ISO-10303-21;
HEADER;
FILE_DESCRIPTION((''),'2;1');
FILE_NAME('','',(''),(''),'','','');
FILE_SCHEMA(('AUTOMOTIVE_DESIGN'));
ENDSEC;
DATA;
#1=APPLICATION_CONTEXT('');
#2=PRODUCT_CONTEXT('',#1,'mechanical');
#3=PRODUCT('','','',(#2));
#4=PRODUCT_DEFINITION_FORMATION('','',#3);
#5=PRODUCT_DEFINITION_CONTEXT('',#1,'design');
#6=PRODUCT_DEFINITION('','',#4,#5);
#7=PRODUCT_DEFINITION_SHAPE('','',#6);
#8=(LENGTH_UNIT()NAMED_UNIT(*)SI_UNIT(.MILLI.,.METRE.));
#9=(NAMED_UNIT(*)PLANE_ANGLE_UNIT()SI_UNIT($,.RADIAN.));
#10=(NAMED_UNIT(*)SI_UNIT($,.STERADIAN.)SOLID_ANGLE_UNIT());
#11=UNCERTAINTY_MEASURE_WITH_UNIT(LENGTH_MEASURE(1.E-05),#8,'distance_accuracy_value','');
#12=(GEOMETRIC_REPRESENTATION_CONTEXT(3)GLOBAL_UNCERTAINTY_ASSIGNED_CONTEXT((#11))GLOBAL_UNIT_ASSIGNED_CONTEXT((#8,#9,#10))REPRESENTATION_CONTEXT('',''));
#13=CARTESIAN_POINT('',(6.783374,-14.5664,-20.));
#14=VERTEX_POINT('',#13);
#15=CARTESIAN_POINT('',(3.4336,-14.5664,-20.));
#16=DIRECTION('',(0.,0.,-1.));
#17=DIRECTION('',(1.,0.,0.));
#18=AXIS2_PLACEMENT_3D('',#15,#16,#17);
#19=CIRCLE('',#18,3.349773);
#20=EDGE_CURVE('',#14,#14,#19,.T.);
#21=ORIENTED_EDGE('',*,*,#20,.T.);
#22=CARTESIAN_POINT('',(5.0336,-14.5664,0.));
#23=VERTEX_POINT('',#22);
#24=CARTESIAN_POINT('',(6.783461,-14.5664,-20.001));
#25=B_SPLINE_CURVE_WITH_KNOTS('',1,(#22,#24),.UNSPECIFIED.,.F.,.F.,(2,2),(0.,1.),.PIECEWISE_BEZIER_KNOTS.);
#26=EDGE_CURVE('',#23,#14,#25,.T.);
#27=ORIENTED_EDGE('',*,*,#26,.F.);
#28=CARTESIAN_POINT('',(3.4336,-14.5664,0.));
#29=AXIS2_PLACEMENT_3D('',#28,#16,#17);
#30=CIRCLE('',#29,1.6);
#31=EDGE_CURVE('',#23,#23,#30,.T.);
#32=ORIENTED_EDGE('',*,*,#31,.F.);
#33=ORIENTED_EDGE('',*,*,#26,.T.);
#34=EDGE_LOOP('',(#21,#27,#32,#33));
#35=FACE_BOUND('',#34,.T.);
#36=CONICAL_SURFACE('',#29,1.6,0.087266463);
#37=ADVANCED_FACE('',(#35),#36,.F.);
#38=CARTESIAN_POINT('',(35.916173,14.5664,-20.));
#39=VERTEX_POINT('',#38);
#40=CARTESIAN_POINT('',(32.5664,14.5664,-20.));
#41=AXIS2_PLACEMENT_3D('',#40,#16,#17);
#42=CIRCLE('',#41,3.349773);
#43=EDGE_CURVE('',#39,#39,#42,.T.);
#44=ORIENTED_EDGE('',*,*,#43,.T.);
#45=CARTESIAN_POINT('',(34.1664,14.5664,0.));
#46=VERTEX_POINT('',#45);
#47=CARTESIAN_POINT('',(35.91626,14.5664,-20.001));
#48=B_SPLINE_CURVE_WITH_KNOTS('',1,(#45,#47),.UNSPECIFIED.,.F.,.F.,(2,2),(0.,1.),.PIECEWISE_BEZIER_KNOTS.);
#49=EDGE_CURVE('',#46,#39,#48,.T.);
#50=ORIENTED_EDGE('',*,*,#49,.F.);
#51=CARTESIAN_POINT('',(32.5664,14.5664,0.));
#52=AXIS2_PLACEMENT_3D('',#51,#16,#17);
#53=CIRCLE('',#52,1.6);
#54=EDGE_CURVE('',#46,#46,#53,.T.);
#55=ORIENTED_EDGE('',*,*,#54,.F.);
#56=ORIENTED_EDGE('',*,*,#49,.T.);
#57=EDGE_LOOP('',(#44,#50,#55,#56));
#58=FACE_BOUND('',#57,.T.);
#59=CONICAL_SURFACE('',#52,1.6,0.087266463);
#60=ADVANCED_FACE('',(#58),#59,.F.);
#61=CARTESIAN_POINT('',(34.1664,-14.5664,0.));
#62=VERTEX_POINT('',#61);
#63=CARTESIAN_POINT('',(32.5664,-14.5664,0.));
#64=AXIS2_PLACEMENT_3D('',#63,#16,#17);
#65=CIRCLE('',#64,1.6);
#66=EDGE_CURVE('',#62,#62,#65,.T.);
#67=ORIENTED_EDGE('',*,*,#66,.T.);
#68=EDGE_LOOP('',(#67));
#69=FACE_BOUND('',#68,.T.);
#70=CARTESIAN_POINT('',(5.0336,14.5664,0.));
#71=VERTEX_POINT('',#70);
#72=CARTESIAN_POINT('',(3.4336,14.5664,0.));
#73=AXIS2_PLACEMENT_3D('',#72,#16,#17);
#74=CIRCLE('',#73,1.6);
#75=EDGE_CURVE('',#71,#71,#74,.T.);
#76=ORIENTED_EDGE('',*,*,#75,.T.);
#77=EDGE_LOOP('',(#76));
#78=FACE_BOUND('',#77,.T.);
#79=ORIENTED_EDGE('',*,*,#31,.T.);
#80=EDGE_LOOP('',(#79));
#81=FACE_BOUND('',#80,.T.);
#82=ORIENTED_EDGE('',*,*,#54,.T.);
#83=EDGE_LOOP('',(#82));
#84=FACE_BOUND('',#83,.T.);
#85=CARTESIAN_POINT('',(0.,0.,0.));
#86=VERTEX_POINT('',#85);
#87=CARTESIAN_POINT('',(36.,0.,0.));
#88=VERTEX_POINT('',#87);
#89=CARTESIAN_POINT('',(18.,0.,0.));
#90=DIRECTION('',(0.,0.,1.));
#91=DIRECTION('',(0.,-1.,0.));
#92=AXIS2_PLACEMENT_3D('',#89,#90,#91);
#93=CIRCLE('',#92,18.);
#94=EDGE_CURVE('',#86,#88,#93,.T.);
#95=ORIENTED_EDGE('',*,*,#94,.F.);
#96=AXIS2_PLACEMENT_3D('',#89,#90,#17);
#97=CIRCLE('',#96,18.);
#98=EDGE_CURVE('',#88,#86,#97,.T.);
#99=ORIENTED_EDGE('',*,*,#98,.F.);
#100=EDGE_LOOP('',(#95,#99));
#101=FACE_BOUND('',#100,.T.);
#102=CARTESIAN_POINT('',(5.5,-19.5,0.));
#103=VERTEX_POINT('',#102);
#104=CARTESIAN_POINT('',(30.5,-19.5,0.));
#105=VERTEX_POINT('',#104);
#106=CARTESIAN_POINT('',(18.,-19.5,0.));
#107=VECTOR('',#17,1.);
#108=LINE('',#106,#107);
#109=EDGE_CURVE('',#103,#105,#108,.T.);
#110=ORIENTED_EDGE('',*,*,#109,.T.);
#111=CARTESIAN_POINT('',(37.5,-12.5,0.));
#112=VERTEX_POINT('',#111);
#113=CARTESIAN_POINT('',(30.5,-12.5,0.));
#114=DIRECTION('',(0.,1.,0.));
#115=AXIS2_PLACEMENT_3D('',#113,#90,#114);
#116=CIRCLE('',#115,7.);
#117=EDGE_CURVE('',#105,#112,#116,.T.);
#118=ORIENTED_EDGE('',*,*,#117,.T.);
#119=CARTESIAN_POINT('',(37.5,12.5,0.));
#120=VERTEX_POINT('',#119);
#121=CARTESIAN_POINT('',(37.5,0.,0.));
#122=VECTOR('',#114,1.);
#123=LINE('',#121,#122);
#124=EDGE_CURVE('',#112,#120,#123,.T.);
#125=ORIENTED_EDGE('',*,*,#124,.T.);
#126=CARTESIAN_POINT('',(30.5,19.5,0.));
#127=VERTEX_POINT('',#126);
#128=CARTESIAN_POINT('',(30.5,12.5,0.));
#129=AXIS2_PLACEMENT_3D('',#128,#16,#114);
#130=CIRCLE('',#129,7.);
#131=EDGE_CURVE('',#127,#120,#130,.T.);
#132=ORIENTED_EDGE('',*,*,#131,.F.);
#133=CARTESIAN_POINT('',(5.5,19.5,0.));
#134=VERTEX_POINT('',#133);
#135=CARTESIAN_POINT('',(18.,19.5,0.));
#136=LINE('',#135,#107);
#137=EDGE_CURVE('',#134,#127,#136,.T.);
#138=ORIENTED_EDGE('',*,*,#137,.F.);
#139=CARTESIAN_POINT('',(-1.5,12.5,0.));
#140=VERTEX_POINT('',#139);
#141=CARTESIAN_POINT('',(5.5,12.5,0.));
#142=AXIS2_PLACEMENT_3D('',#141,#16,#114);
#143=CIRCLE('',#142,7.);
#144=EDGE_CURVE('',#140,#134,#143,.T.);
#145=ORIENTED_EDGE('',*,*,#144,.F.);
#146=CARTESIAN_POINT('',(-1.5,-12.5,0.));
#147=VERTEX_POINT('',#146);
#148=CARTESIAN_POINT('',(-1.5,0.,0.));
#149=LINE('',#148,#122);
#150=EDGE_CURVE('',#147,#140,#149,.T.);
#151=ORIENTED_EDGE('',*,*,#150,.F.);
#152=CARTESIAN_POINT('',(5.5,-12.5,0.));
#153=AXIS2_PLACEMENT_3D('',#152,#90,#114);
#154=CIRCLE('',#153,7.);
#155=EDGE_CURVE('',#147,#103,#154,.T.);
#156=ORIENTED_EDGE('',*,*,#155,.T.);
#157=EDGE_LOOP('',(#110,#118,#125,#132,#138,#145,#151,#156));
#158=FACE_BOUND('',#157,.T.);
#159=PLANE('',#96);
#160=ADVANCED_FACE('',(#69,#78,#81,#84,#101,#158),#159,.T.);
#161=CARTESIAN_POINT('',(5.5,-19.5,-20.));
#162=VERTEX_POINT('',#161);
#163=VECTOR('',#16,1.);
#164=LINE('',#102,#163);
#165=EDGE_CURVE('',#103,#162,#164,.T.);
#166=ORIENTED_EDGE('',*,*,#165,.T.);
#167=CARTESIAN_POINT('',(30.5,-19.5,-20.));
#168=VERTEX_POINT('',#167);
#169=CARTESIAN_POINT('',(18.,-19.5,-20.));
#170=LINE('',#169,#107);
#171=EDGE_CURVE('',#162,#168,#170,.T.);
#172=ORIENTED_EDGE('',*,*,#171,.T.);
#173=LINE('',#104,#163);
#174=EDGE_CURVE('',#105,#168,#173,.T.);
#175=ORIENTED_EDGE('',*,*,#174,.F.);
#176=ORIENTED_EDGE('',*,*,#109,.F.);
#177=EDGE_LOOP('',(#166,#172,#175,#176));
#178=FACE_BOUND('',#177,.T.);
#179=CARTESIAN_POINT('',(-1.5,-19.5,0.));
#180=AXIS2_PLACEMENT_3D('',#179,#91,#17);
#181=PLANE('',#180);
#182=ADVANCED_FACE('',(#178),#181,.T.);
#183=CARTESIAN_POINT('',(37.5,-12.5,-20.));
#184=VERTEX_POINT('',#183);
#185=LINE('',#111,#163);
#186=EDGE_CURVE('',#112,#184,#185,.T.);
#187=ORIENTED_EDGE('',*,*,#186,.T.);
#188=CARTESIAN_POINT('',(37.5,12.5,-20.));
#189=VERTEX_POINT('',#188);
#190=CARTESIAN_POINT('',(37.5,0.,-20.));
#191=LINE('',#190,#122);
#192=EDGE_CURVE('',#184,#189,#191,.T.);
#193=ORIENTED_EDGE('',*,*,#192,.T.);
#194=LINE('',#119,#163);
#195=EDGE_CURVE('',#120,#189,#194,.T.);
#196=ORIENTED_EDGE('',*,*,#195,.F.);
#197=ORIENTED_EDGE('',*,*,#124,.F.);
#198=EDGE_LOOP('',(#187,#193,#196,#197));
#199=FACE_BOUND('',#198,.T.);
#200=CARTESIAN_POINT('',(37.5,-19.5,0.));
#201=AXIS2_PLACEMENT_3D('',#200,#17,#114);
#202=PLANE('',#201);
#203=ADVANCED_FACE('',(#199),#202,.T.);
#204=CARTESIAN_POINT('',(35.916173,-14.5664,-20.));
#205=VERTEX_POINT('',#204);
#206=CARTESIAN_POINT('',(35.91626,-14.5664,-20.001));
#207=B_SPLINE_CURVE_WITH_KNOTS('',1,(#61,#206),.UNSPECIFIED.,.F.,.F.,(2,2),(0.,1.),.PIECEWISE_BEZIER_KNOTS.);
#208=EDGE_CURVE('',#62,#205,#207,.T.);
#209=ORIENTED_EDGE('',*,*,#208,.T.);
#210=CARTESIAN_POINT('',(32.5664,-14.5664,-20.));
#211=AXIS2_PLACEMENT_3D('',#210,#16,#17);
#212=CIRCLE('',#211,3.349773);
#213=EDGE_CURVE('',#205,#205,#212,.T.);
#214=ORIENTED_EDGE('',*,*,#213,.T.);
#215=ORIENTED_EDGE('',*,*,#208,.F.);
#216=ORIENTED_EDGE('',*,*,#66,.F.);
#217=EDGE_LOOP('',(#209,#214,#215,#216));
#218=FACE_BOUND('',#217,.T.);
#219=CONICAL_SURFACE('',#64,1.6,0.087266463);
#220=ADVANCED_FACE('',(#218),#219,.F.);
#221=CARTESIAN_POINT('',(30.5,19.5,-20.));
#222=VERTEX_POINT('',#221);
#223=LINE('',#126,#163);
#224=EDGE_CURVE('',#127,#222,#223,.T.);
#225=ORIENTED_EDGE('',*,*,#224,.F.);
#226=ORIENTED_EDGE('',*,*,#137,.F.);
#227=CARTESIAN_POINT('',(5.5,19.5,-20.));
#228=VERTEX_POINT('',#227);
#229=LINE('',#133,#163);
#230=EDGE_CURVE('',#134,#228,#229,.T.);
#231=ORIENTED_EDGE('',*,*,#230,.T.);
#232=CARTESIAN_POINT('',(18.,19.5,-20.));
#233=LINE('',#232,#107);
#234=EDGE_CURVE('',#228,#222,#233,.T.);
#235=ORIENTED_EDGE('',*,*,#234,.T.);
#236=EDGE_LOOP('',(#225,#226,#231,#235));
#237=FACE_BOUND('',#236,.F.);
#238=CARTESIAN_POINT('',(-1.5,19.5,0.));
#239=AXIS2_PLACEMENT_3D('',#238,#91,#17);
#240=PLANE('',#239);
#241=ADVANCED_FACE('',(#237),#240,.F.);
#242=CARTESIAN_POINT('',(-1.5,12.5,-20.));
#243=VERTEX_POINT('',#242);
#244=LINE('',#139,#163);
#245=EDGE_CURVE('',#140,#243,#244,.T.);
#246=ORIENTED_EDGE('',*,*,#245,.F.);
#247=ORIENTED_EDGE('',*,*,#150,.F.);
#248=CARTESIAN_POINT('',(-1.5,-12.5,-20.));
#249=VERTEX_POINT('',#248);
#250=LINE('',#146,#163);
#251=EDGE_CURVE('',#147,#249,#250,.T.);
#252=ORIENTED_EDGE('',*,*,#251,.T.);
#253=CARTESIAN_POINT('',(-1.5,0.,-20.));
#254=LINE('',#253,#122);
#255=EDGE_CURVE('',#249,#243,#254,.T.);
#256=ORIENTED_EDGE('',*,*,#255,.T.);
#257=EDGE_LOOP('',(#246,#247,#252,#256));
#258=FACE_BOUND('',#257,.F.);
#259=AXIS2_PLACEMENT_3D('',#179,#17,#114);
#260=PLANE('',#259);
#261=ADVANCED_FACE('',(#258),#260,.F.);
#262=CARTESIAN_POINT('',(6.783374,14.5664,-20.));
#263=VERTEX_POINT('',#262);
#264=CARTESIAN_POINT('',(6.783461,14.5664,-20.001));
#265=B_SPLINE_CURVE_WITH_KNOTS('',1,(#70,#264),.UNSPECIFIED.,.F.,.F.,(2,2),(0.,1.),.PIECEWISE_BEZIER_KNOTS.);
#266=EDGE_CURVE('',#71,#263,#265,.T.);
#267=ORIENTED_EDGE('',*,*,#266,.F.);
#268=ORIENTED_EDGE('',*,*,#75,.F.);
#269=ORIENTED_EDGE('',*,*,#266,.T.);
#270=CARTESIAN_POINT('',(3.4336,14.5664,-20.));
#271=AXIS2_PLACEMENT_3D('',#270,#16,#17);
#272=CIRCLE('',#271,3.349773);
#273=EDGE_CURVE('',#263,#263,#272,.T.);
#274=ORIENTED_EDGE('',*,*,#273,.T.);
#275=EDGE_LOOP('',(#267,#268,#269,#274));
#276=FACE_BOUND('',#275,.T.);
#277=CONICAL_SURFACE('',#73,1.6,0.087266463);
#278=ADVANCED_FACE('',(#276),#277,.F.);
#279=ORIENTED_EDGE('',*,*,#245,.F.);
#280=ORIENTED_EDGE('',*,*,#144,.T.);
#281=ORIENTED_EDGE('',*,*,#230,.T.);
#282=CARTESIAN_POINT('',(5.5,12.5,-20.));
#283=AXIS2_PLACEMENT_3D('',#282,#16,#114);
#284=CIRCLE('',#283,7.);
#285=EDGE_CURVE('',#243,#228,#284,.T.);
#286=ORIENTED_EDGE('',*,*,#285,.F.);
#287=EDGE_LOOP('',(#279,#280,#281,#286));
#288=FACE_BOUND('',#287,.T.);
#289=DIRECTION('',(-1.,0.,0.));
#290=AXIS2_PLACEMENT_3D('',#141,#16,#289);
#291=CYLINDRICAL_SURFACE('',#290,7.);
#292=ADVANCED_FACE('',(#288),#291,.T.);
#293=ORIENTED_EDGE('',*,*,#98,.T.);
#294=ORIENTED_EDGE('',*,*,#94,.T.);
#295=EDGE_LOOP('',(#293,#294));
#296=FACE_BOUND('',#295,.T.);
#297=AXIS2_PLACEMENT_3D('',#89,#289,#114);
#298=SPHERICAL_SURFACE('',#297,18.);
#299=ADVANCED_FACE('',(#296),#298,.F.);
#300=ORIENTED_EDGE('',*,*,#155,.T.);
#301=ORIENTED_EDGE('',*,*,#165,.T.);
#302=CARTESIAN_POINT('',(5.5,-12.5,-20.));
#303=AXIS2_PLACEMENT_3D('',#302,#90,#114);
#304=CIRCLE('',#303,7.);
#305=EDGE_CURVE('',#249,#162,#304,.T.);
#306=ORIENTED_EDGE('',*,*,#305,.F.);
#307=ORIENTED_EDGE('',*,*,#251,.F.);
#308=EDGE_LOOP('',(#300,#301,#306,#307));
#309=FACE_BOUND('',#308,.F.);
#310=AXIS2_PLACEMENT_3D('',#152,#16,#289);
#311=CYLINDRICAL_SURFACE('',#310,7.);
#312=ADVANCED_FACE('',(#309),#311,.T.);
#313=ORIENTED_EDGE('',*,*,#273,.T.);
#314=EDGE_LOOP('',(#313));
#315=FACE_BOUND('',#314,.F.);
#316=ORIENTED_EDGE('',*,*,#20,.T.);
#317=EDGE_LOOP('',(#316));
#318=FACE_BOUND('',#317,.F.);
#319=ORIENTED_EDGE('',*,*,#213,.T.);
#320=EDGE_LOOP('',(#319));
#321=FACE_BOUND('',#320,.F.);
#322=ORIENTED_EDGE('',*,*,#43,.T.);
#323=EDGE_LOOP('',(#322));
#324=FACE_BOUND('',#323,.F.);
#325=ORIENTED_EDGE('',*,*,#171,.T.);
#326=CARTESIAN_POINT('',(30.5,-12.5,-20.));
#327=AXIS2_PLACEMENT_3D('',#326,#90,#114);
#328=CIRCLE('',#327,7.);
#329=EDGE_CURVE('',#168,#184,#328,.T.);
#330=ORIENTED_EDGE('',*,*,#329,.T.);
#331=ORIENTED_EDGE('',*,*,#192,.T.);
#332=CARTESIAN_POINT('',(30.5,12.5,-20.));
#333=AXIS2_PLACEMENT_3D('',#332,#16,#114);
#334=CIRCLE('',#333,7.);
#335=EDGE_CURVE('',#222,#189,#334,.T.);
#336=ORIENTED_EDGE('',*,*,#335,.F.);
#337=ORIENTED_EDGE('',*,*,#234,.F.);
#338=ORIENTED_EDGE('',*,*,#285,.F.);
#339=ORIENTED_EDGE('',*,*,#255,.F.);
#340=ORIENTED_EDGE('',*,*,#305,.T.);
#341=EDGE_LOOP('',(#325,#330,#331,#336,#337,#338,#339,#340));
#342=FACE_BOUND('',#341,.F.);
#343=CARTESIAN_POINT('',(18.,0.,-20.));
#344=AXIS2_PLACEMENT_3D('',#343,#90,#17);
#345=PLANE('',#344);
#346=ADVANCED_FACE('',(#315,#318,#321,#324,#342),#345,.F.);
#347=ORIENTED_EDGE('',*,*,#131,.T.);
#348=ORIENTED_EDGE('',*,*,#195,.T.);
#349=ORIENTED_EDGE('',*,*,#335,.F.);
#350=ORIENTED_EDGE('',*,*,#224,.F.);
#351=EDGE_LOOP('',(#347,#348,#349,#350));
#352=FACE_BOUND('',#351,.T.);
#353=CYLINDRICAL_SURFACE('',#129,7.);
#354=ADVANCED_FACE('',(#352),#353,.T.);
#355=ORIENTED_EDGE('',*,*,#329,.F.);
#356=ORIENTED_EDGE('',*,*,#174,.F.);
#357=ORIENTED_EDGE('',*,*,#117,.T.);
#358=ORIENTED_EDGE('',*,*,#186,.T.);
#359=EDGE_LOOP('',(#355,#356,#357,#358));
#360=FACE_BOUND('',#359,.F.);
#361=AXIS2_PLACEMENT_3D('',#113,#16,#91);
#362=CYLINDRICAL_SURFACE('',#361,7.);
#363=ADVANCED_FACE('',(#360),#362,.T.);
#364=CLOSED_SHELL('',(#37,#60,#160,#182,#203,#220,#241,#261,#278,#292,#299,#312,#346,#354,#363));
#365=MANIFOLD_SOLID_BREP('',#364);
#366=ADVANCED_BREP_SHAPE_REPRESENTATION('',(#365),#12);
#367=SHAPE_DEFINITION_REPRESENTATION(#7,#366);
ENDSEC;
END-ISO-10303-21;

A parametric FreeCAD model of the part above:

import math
import FreeCAD as App
import Part
import Sketcher
from FreeCAD import Vector


def edges_at(feature, points):
    """Names of the edges that pass closest to the given points."""
    edges = feature.Shape.Edges
    near = lambda p: min(range(len(edges)), key=lambda i: edges[i].distToShape(Part.Vertex(*p))[0])
    return sorted({f"Edge{near(p) + 1}" for p in points})

doc = App.newDocument("Part")
body = doc.addObject("PartDesign::Body", "Body")

# Sketch on XY plane
sketch1 = body.newObject("Sketcher::SketchObject", "Sketch")
sketch1.AttachmentSupport = (doc.getObject("XY_Plane"), [""])
sketch1.MapMode = "FlatFace"
sketch1.addGeometry([
    Part.LineSegment(Vector(0, 0, 0), Vector(36, 0, 0)),
    Part.ArcOfCircle(Part.Circle(Vector(18, 0, 0), Vector(0, 0, 1), 18), math.radians(0), math.radians(180)),
], False)
sketch1.addConstraint([
    Sketcher.Constraint("Coincident", 0, 1, 1, 2),
    Sketcher.Constraint("Coincident", 1, 1, 0, 2),
    Sketcher.Constraint("Horizontal", 0),
    Sketcher.Constraint("Coincident", 0, 1, -1, 1),
    Sketcher.Constraint("PointOnObject", 1, 3, -1),
    Sketcher.Constraint("Radius", 1, 18.0),
])
revolution = body.newObject("PartDesign::Revolution", "Revolution")
revolution.Profile = sketch1
revolution.ReferenceAxis = (sketch1, ["H_Axis"])
revolution.Angle = 360
body2 = doc.addObject("PartDesign::Body", "Body001")

# Sketch on XY plane
sketch2 = body2.newObject("Sketcher::SketchObject", "Sketch001")
sketch2.AttachmentSupport = (doc.getObject("XY_Plane001"), [""])
sketch2.MapMode = "FlatFace"
sketch2.addGeometry([
    Part.LineSegment(Vector(-2, 20, 0), Vector(-2, -20, 0)),
    Part.LineSegment(Vector(-2, -20, 0), Vector(38, -20, 0)),
    Part.LineSegment(Vector(38, -20, 0), Vector(38, 20, 0)),
    Part.LineSegment(Vector(38, 20, 0), Vector(-2, 20, 0)),
], False)
sketch2.addConstraint([
    Sketcher.Constraint("Coincident", 0, 2, 1, 1),
    Sketcher.Constraint("Coincident", 1, 2, 2, 1),
    Sketcher.Constraint("Coincident", 2, 2, 3, 1),
    Sketcher.Constraint("Coincident", 3, 2, 0, 1),
    Sketcher.Constraint("Vertical", 0),
    Sketcher.Constraint("Horizontal", 1),
    Sketcher.Constraint("Vertical", 2),
    Sketcher.Constraint("Horizontal", 3),
    Sketcher.Constraint("Equal", 3, 0),
    Sketcher.Constraint("DistanceX", 1, 1, 1, 2, 39.0),
    Sketcher.Constraint("DistanceX", 0, 2, -1, 1, 1.5),
    Sketcher.Constraint("DistanceY", 0, 2, -1, 1, 19.5),
])
pad1 = body2.newObject("PartDesign::Pad", "Pad")
pad1.Profile = sketch2
pad1.Length = 20
pad1.Reversed = True
doc.recompute()

boolean = body2.newObject("PartDesign::Boolean", "Boolean")
boolean.Type = "Cut"
boolean.addObjects([body])
doc.recompute()

fillet = body2.newObject("PartDesign::Fillet", "Fillet")
fillet.Base = (boolean, edges_at(boolean, [
    (-1.5, -19.5, -10),
    (37.5, -19.5, -10),
    (37.5, 19.5, -10),
    (-1.5, 19.5, -10),
]))
fillet.Radius = 7

# Sketch on XY plane
sketch3 = body2.newObject("Sketcher::SketchObject", "Sketch002")
sketch3.AttachmentSupport = (doc.getObject("XY_Plane001"), [""])
sketch3.MapMode = "FlatFace"
sketch3.addGeometry([
    Part.Circle(Vector(32.6, 14.6, 0), Vector(0, 0, 1), 1.6),
    Part.Circle(Vector(3.4, 14.6, 0), Vector(0, 0, 1), 1.6),
    Part.Circle(Vector(3.4, -14.6, 0), Vector(0, 0, 1), 1.6),
    Part.Circle(Vector(32.6, -14.6, 0), Vector(0, 0, 1), 1.6),
], False)
sketch3.addConstraint([
    Sketcher.Constraint("Equal", 0, 1),
    Sketcher.Constraint("Equal", 1, 2),
    Sketcher.Constraint("Equal", 2, 3),
    Sketcher.Constraint("Symmetric", 1, 3, 2, 3, -1),
    Sketcher.Constraint("Symmetric", 0, 3, 3, 3, -1),
    Sketcher.Constraint("Horizontal", 0, 3, 1, 3),
    Sketcher.Constraint("Diameter", 0, 3.2),
    Sketcher.Constraint("DistanceX", -1, 1, 0, 3, 32.5664),
    Sketcher.Constraint("DistanceY", -1, 1, 0, 3, 14.5664),
    Sketcher.Constraint("DistanceX", -1, 1, 1, 3, 3.4336),
])
pocket1 = body2.newObject("PartDesign::Pocket", "Pocket")
pocket1.Profile = sketch3
pocket1.Length = 20.001
pocket1.TaperAngle = 5

doc.recompute()
